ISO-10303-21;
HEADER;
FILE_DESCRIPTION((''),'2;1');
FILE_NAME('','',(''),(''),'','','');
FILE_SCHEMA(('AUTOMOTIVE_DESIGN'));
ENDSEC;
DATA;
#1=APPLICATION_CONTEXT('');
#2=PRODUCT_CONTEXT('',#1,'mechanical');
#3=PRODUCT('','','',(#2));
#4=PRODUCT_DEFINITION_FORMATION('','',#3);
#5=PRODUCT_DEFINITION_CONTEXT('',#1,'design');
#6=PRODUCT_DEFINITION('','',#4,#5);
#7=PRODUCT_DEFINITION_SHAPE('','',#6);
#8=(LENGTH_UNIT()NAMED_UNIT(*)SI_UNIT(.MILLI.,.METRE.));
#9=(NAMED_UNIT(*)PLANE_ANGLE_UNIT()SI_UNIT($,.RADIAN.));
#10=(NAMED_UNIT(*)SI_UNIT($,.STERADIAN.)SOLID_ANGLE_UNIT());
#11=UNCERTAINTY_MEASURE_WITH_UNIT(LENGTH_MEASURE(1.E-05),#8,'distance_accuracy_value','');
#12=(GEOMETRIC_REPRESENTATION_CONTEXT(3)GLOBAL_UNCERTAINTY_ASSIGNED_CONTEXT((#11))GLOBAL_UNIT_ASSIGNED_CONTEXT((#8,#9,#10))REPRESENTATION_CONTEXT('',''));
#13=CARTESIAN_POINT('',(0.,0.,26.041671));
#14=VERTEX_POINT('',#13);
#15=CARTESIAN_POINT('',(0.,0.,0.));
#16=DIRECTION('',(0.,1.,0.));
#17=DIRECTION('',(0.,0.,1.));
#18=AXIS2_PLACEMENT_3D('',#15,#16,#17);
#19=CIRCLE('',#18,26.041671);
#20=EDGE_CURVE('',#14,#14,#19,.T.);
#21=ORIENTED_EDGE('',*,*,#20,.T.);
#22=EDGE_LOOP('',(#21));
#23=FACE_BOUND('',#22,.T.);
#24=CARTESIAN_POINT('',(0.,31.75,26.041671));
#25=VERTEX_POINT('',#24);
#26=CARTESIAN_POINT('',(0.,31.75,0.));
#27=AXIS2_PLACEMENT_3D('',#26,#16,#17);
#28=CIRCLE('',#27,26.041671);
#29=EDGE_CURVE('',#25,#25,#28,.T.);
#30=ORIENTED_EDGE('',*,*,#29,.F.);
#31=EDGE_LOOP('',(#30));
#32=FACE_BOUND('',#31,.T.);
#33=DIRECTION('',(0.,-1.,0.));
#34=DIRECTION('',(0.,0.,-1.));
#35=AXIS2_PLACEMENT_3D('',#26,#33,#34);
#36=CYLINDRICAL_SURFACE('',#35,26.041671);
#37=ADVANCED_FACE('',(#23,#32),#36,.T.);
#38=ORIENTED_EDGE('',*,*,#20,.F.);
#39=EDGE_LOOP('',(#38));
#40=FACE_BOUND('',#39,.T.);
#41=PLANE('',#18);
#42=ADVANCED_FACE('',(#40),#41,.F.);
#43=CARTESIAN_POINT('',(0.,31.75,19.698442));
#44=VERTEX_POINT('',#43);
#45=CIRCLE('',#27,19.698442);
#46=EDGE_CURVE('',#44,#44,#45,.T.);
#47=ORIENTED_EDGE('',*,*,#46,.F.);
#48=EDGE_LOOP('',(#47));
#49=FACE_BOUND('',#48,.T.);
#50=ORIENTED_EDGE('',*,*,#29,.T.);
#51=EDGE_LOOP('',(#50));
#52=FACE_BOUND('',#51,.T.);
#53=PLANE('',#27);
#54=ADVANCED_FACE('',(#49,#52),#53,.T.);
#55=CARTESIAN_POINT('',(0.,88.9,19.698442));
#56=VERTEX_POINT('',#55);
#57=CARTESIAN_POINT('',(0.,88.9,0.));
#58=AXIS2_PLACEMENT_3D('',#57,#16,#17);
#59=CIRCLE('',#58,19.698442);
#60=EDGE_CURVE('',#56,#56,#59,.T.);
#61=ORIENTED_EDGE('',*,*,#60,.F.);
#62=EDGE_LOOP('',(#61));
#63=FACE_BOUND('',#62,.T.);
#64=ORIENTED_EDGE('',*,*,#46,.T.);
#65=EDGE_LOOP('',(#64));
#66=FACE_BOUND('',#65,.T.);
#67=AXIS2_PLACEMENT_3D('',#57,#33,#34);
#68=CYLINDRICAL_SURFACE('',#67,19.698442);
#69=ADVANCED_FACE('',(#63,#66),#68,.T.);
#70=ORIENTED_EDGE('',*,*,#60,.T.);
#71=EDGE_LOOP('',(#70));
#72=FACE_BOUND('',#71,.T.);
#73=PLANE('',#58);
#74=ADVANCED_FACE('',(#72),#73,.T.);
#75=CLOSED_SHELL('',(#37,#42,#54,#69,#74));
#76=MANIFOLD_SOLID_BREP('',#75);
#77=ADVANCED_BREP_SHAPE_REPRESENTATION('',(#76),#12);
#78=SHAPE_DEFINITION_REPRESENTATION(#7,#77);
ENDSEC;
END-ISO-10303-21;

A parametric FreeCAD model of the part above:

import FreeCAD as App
import Part
import Sketcher
from FreeCAD import Vector
Q = App.Units.Quantity

doc = App.newDocument("Part")
params = doc.addObject("Spreadsheet::Sheet", "Params")
for row, (alias, value) in enumerate([
    ("pad1_length", "1.25 in"),
    ("pad2_length", "2.25 in"),
], start=1):
    params.set(f"A{row}", alias)
    params.set(f"B{row}", "=" + value)
    params.setAlias(f"B{row}", alias)

body = doc.addObject("PartDesign::Body", "Body")

# Sketch on XZ plane
sketch1 = doc.addObject("Sketcher::SketchObject", "Sketch")
body.addObject(sketch1)
sketch1.AttachmentSupport = (doc.XZ_Plane, [""])
sketch1.MapMode = "FlatFace"
sketch1.addGeometry(Part.Circle(Vector(0, 0, 0), Vector(0, 0, 1), 26), False)
sketch1.addConstraint(Sketcher.Constraint("Coincident", 0, 3, -1, 1))
sketch1.addConstraint(Sketcher.Constraint("Diameter", 0, Q("52.083341 mm")))
pad1 = doc.addObject("PartDesign::Pad", "Pad")
body.addObject(pad1)
pad1.Profile = sketch1
pad1.setExpression("Length", "Params.pad1_length")
pad1.Reversed = True

# Sketch on XZ plane
sketch2 = doc.addObject("Sketcher::SketchObject", "Sketch001")
body.addObject(sketch2)
sketch2.AttachmentSupport = (doc.XZ_Plane, [""])
sketch2.MapMode = "FlatFace"
sketch2.AttachmentOffset = App.Placement(Vector(0, 0, -1.25 * 25.4), App.Rotation())
sketch2.addGeometry(Part.Circle(Vector(0, 0, 0), Vector(0, 0, 1), 20), False)
sketch2.addConstraint(Sketcher.Constraint("Coincident", 0, 3, -1, 1))
sketch2.addConstraint(Sketcher.Constraint("Diameter", 0, Q("39.396883 mm")))
pad2 = doc.addObject("PartDesign::Pad", "Pad001")
body.addObject(pad2)
pad2.Profile = sketch2
pad2.setExpression("Length", "Params.pad2_length")
pad2.Reversed = True

doc.recompute()
